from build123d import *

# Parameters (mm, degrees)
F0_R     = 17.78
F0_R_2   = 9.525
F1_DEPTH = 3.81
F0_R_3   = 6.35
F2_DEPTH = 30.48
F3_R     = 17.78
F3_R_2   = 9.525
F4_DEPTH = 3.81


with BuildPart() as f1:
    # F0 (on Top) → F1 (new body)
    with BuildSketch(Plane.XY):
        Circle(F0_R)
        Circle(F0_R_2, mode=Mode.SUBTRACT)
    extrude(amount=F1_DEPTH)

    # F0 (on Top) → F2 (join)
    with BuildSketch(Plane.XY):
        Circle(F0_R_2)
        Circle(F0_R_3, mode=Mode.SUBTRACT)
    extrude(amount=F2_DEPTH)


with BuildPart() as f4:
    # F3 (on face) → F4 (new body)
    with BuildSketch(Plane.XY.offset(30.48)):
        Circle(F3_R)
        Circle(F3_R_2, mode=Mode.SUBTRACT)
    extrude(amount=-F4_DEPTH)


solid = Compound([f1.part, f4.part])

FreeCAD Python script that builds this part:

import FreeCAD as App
import Part
import Sketcher
Q = App.Units.Quantity

doc = App.newDocument("Part")
params = doc.addObject("Spreadsheet::Sheet", "Params")
for row, (alias, value) in enumerate([
    ("sketch1_diameter", "1.4 in"),
    ("sketch1_diameter2", "0.75 in"),
    ("pad1_length", "0.15 in"),
    ("sketch2_diameter", "0.5 in"),
    ("sketch2_diameter2", "0.75 in"),
    ("pad2_length", "1.2 in"),
    ("sketch3_diameter", "1.4 in"),
    ("sketch3_diameter2", "0.75 in"),
    ("pad3_length", "0.15 in"),
], start=1):
    params.set(f"A{row}", alias)
    params.set(f"B{row}", "=" + value)
    params.setAlias(f"B{row}", alias)

body = doc.addObject("PartDesign::Body", "Body")

sketch1 = body.newObject("Sketcher::SketchObject", "Sketch")
sketch1.AttachmentSupport = (doc.getObject("XY_Plane"), [""])
sketch1.MapMode = "FlatFace"
sketch1.addGeometry(Part.Circle(App.Vector(0, 0, 0), App.Vector(0, 0, 1), 18), False)
sketch1.addGeometry(Part.Circle(App.Vector(0, 0, 0), App.Vector(0, 0, 1), 10), False)
sketch1.addConstraint(Sketcher.Constraint("Coincident", 0, 3, -1, 1))
sketch1.addConstraint(Sketcher.Constraint("Coincident", 1, 3, -1, 1))
sketch1.addConstraint(Sketcher.Constraint("Diameter", 0, Q("1.4 in")))
sketch1.addConstraint(Sketcher.Constraint("Diameter", 1, Q("0.75 in")))
sketch1.setExpression("Constraints[2]", "Params.sketch1_diameter")
sketch1.setExpression("Constraints[3]", "Params.sketch1_diameter2")
pad1 = body.newObject("PartDesign::Pad", "Pad")
pad1.Profile = sketch1
pad1.setExpression("Length", "Params.pad1_length")

sketch2 = body.newObject("Sketcher::SketchObject", "Sketch001")
sketch2.AttachmentSupport = (doc.getObject("XY_Plane"), [""])
sketch2.MapMode = "FlatFace"
sketch2.addGeometry(Part.Circle(App.Vector(0, 0, 0), App.Vector(0, 0, 1), 10), False)
sketch2.addGeometry(Part.Circle(App.Vector(0, 0, 0), App.Vector(0, 0, 1), 6), False)
sketch2.addConstraint(Sketcher.Constraint("Coincident", 0, 3, -1, 1))
sketch2.addConstraint(Sketcher.Constraint("Coincident", 1, 3, -1, 1))
sketch2.addConstraint(Sketcher.Constraint("Diameter", 1, Q("0.5 in")))
sketch2.addConstraint(Sketcher.Constraint("Diameter", 0, Q("0.75 in")))
sketch2.setExpression("Constraints[2]", "Params.sketch2_diameter")
sketch2.setExpression("Constraints[3]", "Params.sketch2_diameter2")
pad2 = body.newObject("PartDesign::Pad", "Pad001")
pad2.Profile = sketch2
pad2.setExpression("Length", "Params.pad2_length")
body2 = doc.addObject("PartDesign::Body", "Body001")

sketch3 = body2.newObject("Sketcher::SketchObject", "Sketch002")
sketch3.AttachmentSupport = (doc.getObject("XY_Plane001"), [""])
sketch3.MapMode = "FlatFace"
sketch3.AttachmentOffset = App.Placement(App.Vector(0, 0, 1.2 * 25.4), App.Rotation())
sketch3.addGeometry(Part.Circle(App.Vector(0, 0, 0), App.Vector(0, 0, 1), 18), False)
sketch3.addGeometry(Part.Circle(App.Vector(0, 0, 0), App.Vector(0, 0, 1), 10), False)
sketch3.addConstraint(Sketcher.Constraint("Coincident", 0, 3, -1, 1))
sketch3.addConstraint(Sketcher.Constraint("Coincident", 1, 3, -1, 1))
sketch3.addConstraint(Sketcher.Constraint("Diameter", 0, Q("1.4 in")))
sketch3.addConstraint(Sketcher.Constraint("Diameter", 1, Q("0.75 in")))
sketch3.setExpression("Constraints[2]", "Params.sketch3_diameter")
sketch3.setExpression("Constraints[3]", "Params.sketch3_diameter2")
pad3 = body2.newObject("PartDesign::Pad", "Pad002")
pad3.Profile = sketch3
pad3.setExpression("Length", "Params.pad3_length")
pad3.Reversed = True

doc.recompute()
